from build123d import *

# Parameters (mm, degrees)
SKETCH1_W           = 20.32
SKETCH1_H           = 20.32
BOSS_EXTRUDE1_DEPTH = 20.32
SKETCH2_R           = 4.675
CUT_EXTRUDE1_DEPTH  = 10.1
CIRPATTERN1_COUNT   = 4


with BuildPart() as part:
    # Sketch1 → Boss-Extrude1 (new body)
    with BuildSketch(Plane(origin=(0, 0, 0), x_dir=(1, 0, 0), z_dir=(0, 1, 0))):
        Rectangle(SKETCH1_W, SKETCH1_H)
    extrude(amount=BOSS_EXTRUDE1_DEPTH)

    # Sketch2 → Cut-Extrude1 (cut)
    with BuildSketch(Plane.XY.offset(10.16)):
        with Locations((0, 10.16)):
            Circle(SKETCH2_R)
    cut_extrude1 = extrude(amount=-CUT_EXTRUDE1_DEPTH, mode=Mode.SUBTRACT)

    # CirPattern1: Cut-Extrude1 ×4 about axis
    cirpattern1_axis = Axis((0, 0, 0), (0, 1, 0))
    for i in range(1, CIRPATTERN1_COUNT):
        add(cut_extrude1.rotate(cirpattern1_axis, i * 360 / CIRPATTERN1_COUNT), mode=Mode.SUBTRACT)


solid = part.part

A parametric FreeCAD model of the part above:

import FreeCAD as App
import Part
import Sketcher
from FreeCAD import Vector
Q = App.Units.Quantity


def add_polygon(sketch, points):
    """Adds a closed chain of lines whose ends are joined by coincident constraints."""
    first, n = sketch.GeometryCount, len(points)
    for a, b in zip(points, points[1:] + points[:1]):
        sketch.addGeometry(Part.LineSegment(App.Vector(*a, 0), App.Vector(*b, 0)), False)
    for i in range(n):
        sketch.addConstraint(Sketcher.Constraint("Coincident", first + i, 2, first + (i + 1) % n, 1))

doc = App.newDocument("Part")
body = doc.addObject("PartDesign::Body", "Body")

sketch1 = body.newObject("Sketcher::SketchObject", "Sketch")
sketch1.AttachmentSupport = (doc.getObject("XZ_Plane"), [""])
sketch1.MapMode = "FlatFace"
add_polygon(sketch1, [(-10.16, -10.16), (-10.16, 10.16), (10.16, 10.16), (10.16, -10.16)])
sketch1.addConstraint([
    Sketcher.Constraint("Vertical", 0),
    Sketcher.Constraint("Horizontal", 1),
    Sketcher.Constraint("Vertical", 2),
    Sketcher.Constraint("Horizontal", 3),
    Sketcher.Constraint("Symmetric", 0, 2, 2, 2, -1, 1),
    Sketcher.Constraint("Equal", 3, 0),
    Sketcher.Constraint("DistanceX", 1, 1, 1, 2, Q("20.32 mm")),
])
pad1 = body.newObject("PartDesign::Pad", "Pad")
pad1.Profile = sketch1
pad1.Length = 20.32
pad1.Reversed = True

sketch2 = body.newObject("Sketcher::SketchObject", "Sketch001")
sketch2.AttachmentSupport = (doc.getObject("XY_Plane"), [""])
sketch2.MapMode = "FlatFace"
sketch2.AttachmentOffset = App.Placement(Vector(0, 0, 10.16), App.Rotation())
sketch2.addGeometry(Part.Circle(Vector(0, 10.16, 0), Vector(0, 0, 1), 4.675), False)
sketch2.addConstraint([
    Sketcher.Constraint("PointOnObject", 0, 3, -2),
    Sketcher.Constraint("Diameter", 0, Q("9.35 mm")),
    Sketcher.Constraint("DistanceY", -1, 1, 0, 3, Q("10.16 mm")),
])
pocket1 = body.newObject("PartDesign::Pocket", "Pocket")
pocket1.Profile = sketch2
pocket1.Length = 10.1
doc.recompute()

polarpattern = body.newObject("PartDesign::PolarPattern", "PolarPattern")
polarpattern.Originals = [pocket1]
polarpattern.Axis = (doc.getObject("Y_Axis"), [""])
polarpattern.Angle = 360
polarpattern.Occurrences = 4
body.Tip = polarpattern

doc.recompute()
